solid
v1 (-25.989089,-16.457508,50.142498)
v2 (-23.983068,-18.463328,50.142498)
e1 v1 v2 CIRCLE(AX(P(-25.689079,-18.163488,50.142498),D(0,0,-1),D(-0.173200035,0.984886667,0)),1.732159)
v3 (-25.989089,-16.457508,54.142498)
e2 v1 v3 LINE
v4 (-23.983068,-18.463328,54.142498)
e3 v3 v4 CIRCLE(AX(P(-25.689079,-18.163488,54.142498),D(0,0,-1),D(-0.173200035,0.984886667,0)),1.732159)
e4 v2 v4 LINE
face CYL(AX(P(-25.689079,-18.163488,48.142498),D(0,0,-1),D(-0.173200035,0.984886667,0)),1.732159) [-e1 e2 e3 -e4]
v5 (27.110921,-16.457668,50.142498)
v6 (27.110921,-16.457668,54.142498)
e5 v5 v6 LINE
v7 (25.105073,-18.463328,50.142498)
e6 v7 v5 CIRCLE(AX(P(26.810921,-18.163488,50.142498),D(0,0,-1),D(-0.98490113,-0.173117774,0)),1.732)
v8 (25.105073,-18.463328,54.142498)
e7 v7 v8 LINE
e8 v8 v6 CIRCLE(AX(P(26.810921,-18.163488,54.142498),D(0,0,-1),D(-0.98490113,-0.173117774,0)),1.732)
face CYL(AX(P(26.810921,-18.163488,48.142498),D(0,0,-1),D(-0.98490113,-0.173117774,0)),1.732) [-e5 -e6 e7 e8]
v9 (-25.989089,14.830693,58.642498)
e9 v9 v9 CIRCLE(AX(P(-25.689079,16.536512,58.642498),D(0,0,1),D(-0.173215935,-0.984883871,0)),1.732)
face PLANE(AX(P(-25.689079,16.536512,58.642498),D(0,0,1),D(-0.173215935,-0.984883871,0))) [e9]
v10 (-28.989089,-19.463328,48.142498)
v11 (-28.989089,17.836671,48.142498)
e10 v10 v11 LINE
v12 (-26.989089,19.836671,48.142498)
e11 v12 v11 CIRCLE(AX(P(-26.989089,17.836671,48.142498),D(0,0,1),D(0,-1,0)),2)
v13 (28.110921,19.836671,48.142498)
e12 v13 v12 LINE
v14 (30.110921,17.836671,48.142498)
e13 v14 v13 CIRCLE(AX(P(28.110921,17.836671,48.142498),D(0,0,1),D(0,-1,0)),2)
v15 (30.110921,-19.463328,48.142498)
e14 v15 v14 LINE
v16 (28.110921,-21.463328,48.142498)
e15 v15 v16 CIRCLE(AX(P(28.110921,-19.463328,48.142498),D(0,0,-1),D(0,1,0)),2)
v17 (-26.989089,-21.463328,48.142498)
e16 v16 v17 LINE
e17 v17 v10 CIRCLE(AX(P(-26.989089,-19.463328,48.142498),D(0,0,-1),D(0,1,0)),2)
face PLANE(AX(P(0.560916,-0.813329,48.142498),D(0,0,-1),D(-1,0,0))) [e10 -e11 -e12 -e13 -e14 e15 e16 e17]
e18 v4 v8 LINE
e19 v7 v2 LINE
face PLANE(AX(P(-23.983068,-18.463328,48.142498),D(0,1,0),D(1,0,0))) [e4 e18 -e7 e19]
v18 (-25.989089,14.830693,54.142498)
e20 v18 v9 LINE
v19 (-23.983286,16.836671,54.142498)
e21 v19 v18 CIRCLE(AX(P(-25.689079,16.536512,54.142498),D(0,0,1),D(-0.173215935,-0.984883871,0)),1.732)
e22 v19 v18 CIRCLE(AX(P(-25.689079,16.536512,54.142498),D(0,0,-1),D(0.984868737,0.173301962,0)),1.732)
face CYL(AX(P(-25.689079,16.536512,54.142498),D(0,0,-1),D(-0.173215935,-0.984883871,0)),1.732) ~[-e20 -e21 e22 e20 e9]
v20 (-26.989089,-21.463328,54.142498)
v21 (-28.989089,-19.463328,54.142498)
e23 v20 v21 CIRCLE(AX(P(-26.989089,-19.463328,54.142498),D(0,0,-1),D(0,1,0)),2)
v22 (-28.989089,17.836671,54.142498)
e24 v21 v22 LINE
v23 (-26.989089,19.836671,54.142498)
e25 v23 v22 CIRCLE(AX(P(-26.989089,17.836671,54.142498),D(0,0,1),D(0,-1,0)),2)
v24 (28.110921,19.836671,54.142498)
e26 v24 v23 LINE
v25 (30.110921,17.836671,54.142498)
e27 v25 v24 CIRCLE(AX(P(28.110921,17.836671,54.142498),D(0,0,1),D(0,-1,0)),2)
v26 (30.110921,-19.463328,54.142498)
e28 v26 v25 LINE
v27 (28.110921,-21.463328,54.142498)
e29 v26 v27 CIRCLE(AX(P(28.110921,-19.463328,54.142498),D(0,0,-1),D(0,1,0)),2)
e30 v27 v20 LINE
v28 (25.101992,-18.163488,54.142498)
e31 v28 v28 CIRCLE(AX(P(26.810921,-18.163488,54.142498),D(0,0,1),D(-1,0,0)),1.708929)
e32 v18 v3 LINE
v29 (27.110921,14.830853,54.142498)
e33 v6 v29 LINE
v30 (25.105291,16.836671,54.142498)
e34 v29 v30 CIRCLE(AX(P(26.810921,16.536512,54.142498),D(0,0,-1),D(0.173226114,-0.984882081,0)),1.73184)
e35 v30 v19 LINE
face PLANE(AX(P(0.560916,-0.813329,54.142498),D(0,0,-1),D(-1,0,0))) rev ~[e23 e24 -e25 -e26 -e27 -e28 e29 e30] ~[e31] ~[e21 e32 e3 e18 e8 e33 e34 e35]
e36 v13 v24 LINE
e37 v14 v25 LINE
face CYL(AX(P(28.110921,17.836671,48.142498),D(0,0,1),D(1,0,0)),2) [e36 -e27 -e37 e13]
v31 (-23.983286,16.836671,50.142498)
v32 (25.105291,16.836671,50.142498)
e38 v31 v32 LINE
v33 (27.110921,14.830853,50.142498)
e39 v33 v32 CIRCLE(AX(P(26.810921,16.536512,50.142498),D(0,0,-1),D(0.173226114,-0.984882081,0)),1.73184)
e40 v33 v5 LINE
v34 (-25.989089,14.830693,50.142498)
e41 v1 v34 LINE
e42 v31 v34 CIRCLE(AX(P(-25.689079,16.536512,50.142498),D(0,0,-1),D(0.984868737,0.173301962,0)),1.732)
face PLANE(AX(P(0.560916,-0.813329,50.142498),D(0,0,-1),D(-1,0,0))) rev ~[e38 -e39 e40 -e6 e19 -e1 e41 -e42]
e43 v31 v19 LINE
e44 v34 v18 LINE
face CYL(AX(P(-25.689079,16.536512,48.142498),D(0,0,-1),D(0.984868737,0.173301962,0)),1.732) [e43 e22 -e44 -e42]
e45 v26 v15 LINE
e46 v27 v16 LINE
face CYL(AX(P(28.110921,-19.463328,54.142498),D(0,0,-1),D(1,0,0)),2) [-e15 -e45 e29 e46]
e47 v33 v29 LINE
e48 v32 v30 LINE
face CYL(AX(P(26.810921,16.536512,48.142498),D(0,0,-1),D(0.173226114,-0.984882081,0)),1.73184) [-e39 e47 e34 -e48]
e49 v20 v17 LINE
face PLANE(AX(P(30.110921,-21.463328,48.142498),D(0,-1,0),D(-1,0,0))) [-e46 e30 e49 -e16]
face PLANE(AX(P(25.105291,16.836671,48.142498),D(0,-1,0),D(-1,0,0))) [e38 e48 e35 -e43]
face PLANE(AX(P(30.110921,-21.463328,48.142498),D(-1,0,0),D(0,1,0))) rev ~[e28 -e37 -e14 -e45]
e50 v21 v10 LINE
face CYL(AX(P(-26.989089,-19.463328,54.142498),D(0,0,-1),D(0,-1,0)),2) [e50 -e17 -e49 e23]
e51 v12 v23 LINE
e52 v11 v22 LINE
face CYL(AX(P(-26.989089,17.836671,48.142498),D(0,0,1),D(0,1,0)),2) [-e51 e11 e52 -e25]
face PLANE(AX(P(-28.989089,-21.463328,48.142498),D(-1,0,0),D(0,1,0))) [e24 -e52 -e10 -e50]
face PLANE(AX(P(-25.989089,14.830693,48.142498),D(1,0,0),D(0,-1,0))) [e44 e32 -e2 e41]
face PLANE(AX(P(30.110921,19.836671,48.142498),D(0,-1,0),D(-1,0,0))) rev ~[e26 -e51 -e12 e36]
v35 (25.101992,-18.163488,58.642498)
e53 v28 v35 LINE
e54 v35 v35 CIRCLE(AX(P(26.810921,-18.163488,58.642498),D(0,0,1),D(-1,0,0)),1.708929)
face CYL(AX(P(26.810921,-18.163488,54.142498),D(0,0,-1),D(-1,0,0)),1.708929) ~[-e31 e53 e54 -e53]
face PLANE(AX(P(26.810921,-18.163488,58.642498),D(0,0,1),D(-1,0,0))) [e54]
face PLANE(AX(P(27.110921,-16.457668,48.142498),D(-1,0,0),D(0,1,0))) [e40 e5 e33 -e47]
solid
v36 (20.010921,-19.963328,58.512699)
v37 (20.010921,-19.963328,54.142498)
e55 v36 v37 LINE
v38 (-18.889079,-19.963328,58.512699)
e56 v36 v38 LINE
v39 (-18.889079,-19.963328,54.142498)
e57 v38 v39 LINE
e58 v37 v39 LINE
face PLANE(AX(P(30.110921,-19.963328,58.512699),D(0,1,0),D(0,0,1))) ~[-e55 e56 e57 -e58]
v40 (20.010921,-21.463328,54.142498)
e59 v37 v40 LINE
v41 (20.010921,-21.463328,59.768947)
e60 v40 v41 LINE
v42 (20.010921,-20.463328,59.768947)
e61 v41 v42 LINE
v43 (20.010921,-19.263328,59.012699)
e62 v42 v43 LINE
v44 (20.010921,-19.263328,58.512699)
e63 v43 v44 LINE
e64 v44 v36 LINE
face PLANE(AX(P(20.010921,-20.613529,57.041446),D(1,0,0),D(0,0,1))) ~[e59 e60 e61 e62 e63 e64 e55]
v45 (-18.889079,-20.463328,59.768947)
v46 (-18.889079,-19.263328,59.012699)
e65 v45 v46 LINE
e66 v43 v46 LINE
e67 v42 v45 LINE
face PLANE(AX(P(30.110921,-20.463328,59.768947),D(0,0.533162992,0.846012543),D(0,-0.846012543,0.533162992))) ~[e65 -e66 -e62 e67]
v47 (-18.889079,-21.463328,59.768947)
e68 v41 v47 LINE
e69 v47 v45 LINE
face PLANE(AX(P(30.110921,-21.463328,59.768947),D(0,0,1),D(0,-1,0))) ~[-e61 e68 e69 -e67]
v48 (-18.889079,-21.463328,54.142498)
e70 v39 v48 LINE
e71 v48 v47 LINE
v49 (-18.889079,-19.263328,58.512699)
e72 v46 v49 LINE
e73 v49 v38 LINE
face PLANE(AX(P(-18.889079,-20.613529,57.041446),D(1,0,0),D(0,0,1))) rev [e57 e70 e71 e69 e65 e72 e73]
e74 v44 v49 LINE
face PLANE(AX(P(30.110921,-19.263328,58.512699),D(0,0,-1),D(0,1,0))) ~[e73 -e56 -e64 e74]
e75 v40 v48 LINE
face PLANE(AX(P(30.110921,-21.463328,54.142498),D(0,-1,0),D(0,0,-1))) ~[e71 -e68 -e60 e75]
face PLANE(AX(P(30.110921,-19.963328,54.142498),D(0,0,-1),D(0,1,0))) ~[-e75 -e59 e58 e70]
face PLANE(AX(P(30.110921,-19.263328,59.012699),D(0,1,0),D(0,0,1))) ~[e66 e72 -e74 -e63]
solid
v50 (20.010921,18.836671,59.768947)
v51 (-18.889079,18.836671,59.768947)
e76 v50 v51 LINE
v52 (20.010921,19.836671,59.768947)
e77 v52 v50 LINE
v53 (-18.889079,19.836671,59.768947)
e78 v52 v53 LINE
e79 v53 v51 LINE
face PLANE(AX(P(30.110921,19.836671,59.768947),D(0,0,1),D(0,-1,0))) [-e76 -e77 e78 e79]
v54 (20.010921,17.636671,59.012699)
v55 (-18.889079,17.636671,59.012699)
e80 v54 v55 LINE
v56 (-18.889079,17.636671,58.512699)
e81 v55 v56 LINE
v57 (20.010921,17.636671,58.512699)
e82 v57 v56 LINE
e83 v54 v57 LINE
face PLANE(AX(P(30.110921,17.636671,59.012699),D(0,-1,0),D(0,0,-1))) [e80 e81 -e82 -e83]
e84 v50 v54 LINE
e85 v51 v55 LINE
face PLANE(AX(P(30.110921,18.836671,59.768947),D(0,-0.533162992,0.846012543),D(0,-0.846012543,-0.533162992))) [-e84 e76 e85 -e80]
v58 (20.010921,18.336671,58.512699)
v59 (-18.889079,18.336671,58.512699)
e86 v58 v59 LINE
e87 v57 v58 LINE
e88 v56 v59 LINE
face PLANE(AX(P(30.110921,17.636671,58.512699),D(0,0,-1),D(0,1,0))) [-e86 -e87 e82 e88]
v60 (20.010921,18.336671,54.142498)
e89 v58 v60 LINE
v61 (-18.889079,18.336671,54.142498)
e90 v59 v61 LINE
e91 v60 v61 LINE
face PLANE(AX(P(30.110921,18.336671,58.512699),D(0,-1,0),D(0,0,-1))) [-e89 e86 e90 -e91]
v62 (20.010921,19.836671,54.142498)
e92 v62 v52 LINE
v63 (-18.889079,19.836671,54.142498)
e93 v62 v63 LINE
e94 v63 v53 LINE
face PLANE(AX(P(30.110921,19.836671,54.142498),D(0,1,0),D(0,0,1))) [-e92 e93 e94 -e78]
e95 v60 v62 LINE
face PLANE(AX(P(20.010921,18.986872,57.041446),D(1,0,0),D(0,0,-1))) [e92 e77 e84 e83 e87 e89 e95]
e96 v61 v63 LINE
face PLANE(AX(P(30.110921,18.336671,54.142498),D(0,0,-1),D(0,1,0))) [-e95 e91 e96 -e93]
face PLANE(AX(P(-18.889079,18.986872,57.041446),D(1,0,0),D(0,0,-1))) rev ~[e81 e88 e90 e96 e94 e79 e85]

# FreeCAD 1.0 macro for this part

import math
import FreeCAD as App
import Part
import Sketcher


def edges_at(feature, points):
    """Names of the edges that pass closest to the given points."""
    edges = feature.Shape.Edges
    near = lambda p: min(range(len(edges)), key=lambda i: edges[i].distToShape(Part.Vertex(*p))[0])
    return sorted({f"Edge{near(p) + 1}" for p in points})

doc = App.newDocument("Part")
body = doc.addObject("PartDesign::Body", "Body")

sketch1 = doc.addObject("Sketcher::SketchObject", "Sketch")
body.addObject(sketch1)
sketch1.AttachmentSupport = (doc.XY_Plane, [""])
sketch1.MapMode = "FlatFace"
sketch1.AttachmentOffset = App.Placement(App.Vector(0, 0, 48.142498), App.Rotation())
sketch1.addGeometry([
    Part.LineSegment(App.Vector(30.110921, 19.836671, 0), App.Vector(30.110921, -21.463328, 0)),
    Part.LineSegment(App.Vector(30.110921, -21.463328, 0), App.Vector(-28.989089, -21.463328, 0)),
    Part.LineSegment(App.Vector(-28.989089, -21.463328, 0), App.Vector(-28.989089, 19.836671, 0)),
    Part.LineSegment(App.Vector(-28.989089, 19.836671, 0), App.Vector(30.110921, 19.836671, 0)),
    Part.ArcOfCircle(Part.Circle(App.Vector(26.810921, -18.163488, 0), App.Vector(0, 0, 1), 1.732), math.radians(80.025483), math.radians(189.969143)),
    Part.LineSegment(App.Vector(27.110921, -16.457668, 0), App.Vector(27.110921, 14.830853, 0)),
    Part.ArcOfCircle(Part.Circle(App.Vector(26.810921, 16.536512, 0), App.Vector(0, 0, 1), 1.73184), math.radians(170.019213), math.radians(279.975445)),
    Part.LineSegment(App.Vector(25.105291, 16.836671, 0), App.Vector(-23.983286, 16.836671, 0)),
    Part.ArcOfCircle(Part.Circle(App.Vector(-25.689079, 16.536512, 0), App.Vector(0, 0, 1), 1.732), math.radians(-99.974853), math.radians(9.979858)),
    Part.LineSegment(App.Vector(-25.989089, 14.830693, 0), App.Vector(-25.989089, -16.457508, 0)),
    Part.ArcOfCircle(Part.Circle(App.Vector(-25.689079, -18.163488, 0), App.Vector(0, 0, 1), 1.732159), math.radians(-9.968218), math.radians(99.973928)),
    Part.LineSegment(App.Vector(-23.983068, -18.463328, 0), App.Vector(25.105073, -18.463328, 0)),
], False)
sketch1.addConstraint([
    Sketcher.Constraint("Coincident", 0, 2, 1, 1),
    Sketcher.Constraint("Coincident", 1, 2, 2, 1),
    Sketcher.Constraint("Coincident", 2, 2, 3, 1),
    Sketcher.Constraint("Coincident", 3, 2, 0, 1),
    Sketcher.Constraint("Coincident", 4, 1, 5, 1),
    Sketcher.Constraint("Coincident", 5, 2, 6, 2),
    Sketcher.Constraint("Coincident", 6, 1, 7, 1),
    Sketcher.Constraint("Coincident", 7, 2, 8, 2),
    Sketcher.Constraint("Coincident", 8, 1, 9, 1),
    Sketcher.Constraint("Coincident", 9, 2, 10, 2),
    Sketcher.Constraint("Coincident", 10, 1, 11, 1),
    Sketcher.Constraint("Coincident", 11, 2, 4, 2),
    Sketcher.Constraint("Vertical", 0),
    Sketcher.Constraint("Horizontal", 1),
    Sketcher.Constraint("Vertical", 2),
    Sketcher.Constraint("Horizontal", 3),
    Sketcher.Constraint("Vertical", 5),
    Sketcher.Constraint("Horizontal", 7),
    Sketcher.Constraint("Vertical", 9),
    Sketcher.Constraint("Horizontal", 11),
    Sketcher.Constraint("Equal", 4, 8),
    Sketcher.Constraint("Horizontal", 6, 3, 8, 3),
    Sketcher.Constraint("Horizontal", 4, 3, 10, 3),
    Sketcher.Constraint("Vertical", 4, 3, 6, 3),
    Sketcher.Constraint("Vertical", 8, 3, 10, 3),
    Sketcher.Constraint("DistanceY", 0, 2, 0, 1, 41.299999),
    Sketcher.Constraint("Radius", 4, 1.732),
    Sketcher.Constraint("DistanceX", 4, 1, 0, 2, 3.0),
    Sketcher.Constraint("DistanceY", 6, 1, 3, 2, 3.0),
    Sketcher.Constraint("DistanceX", 2, 2, 8, 1, 3.0),
    Sketcher.Constraint("DistanceY", 1, 2, 10, 1, 3.0),
    Sketcher.Constraint("DistanceY", 4, 3, 6, 3, 34.7),
    Sketcher.Constraint("DistanceX", 8, 3, 6, 3, 52.5),
    Sketcher.Constraint("DistanceX", 4, 3, 0, 2, 3.3),
    Sketcher.Constraint("Radius", 6, 1.73184),
    Sketcher.Constraint("Radius", 10, 1.732159),
    Sketcher.Constraint("DistanceY", 9, 2, 9, 1, 31.288201),
    Sketcher.Constraint("DistanceX", 11, 1, 11, 2, 49.088141),
    Sketcher.Constraint("DistanceX", -1, 1, 4, 3, 26.810921),
    Sketcher.Constraint("DistanceY", 4, 3, -1, 1, 18.163488),
])
pad1 = doc.addObject("PartDesign::Pad", "Pad")
body.addObject(pad1)
pad1.Profile = sketch1
pad1.Length = 6

sketch2 = doc.addObject("Sketcher::SketchObject", "Sketch001")
body.addObject(sketch2)
sketch2.AttachmentSupport = (doc.XY_Plane, [""])
sketch2.MapMode = "FlatFace"
sketch2.AttachmentOffset = App.Placement(App.Vector(0, 0, 48.142498), App.Rotation())
sketch2.addGeometry([
    Part.LineSegment(App.Vector(30.110921, 19.836671, 0), App.Vector(30.110921, -21.463328, 0)),
    Part.LineSegment(App.Vector(30.110921, -21.463328, 0), App.Vector(-28.989089, -21.463328, 0)),
    Part.LineSegment(App.Vector(-28.989089, -21.463328, 0), App.Vector(-28.989089, 19.836671, 0)),
    Part.LineSegment(App.Vector(-28.989089, 19.836671, 0), App.Vector(30.110921, 19.836671, 0)),
], False)
sketch2.addConstraint([
    Sketcher.Constraint("Coincident", 0, 2, 1, 1),
    Sketcher.Constraint("Coincident", 1, 2, 2, 1),
    Sketcher.Constraint("Coincident", 2, 2, 3, 1),
    Sketcher.Constraint("Coincident", 3, 2, 0, 1),
    Sketcher.Constraint("Vertical", 0),
    Sketcher.Constraint("Horizontal", 1),
    Sketcher.Constraint("Vertical", 2),
    Sketcher.Constraint("Horizontal", 3),
    Sketcher.Constraint("DistanceY", 0, 2, 0, 1, 41.299999),
    Sketcher.Constraint("DistanceX", 1, 2, 1, 1, 59.10001),
    Sketcher.Constraint("DistanceX", -1, 1, 0, 2, 30.110921),
    Sketcher.Constraint("DistanceY", 0, 2, -1, 1, 21.463328),
])
pad2 = doc.addObject("PartDesign::Pad", "Pad001")
body.addObject(pad2)
pad2.Profile = sketch2
pad2.Length = 2

sketch3 = doc.addObject("Sketcher::SketchObject", "Sketch002")
body.addObject(sketch3)
sketch3.AttachmentSupport = (doc.XY_Plane, [""])
sketch3.MapMode = "FlatFace"
sketch3.AttachmentOffset = App.Placement(App.Vector(0, 0, 54.142498), App.Rotation())
sketch3.addGeometry([
    Part.Circle(App.Vector(26.810921, -18.163488, 0), App.Vector(0, 0, 1), 1.708929),
    Part.Circle(App.Vector(-25.689079, 16.536512, 0), App.Vector(0, 0, 1), 1.732),
], False)
sketch3.addConstraint([
    Sketcher.Constraint("Diameter", 1, 3.464),
    Sketcher.Constraint("DistanceX", 1, 3, 0, 3, 52.5),
    Sketcher.Constraint("DistanceY", 0, 3, 1, 3, 34.7),
    Sketcher.Constraint("Diameter", 0, 3.417858),
    Sketcher.Constraint("DistanceX", -1, 1, 0, 3, 26.810921),
    Sketcher.Constraint("DistanceY", 0, 3, -1, 1, 18.163488),
])
pad3 = doc.addObject("PartDesign::Pad", "Pad002")
body.addObject(pad3)
pad3.Profile = sketch3
pad3.Length = 4.5
doc.recompute()

fillet = doc.addObject("PartDesign::Fillet", "Fillet")
body.addObject(fillet)
fillet.Base = (pad3, edges_at(pad3, [
    (30.111, -21.463, 51.142),
    (30.111, 19.837, 51.142),
    (-28.989, 19.837, 51.142),
    (-28.989, -21.463, 51.142),
]))
fillet.Radius = 2
body2 = doc.addObject("PartDesign::Body", "Body001")

sketch4 = doc.addObject("Sketcher::SketchObject", "Sketch003")
body2.addObject(sketch4)
sketch4.AttachmentSupport = (doc.getObject("YZ_Plane001"), [""])
sketch4.MapMode = "FlatFace"
sketch4.AttachmentOffset = App.Placement(App.Vector(0, 0, 30.110921), App.Rotation())
sketch4.addGeometry([
    Part.LineSegment(App.Vector(19.836671, 54.142498, 0), App.Vector(19.836671, 59.768947, 0)),
    Part.LineSegment(App.Vector(19.836671, 59.768947, 0), App.Vector(18.836671, 59.768947, 0)),
    Part.LineSegment(App.Vector(18.836671, 59.768947, 0), App.Vector(17.636671, 59.012699, 0)),
    Part.LineSegment(App.Vector(17.636671, 59.012699, 0), App.Vector(17.636671, 58.512699, 0)),
    Part.LineSegment(App.Vector(17.636671, 58.512699, 0), App.Vector(18.336671, 58.512699, 0)),
    Part.LineSegment(App.Vector(18.336671, 58.512699, 0), App.Vector(18.336671, 54.142498, 0)),
    Part.LineSegment(App.Vector(18.336671, 54.142498, 0), App.Vector(19.836671, 54.142498, 0)),
], False)
sketch4.addConstraint([
    Sketcher.Constraint("Coincident", 0, 2, 1, 1),
    Sketcher.Constraint("Coincident", 1, 2, 2, 1),
    Sketcher.Constraint("Coincident", 2, 2, 3, 1),
    Sketcher.Constraint("Coincident", 3, 2, 4, 1),
    Sketcher.Constraint("Coincident", 4, 2, 5, 1),
    Sketcher.Constraint("Coincident", 5, 2, 6, 1),
    Sketcher.Constraint("Coincident", 6, 2, 0, 1),
    Sketcher.Constraint("Vertical", 0),
    Sketcher.Constraint("Horizontal", 1),
    Sketcher.Constraint("Vertical", 3),
    Sketcher.Constraint("Horizontal", 4),
    Sketcher.Constraint("Vertical", 5),
    Sketcher.Constraint("Horizontal", 6),
    Sketcher.Constraint("DistanceX", 1, 2, 1, 1, 1.0),
    Sketcher.Constraint("DistanceX", 4, 1, 4, 2, 0.7),
    Sketcher.Constraint("DistanceX", 6, 1, 6, 2, 1.5),
    Sketcher.Constraint("DistanceY", 3, 2, 3, 1, 0.5),
    Sketcher.Constraint("DistanceY", 5, 2, 5, 1, 4.370202),
    Sketcher.Constraint("DistanceY", 0, 1, 0, 2, 5.62645),
    Sketcher.Constraint("DistanceY", -1, 1, 2, 2, 59.012699),
    Sketcher.Constraint("DistanceX", -1, 1, 0, 2, 19.836671),
])
pad4 = doc.addObject("PartDesign::Pad", "Pad003")
body2.addObject(pad4)
pad4.Profile = sketch4
pad4.Length = 49
pad4.Reversed = True

sketch5 = doc.addObject("Sketcher::SketchObject", "Sketch004")
body2.addObject(sketch5)
sketch5.AttachmentSupport = (doc.getObject("YZ_Plane001"), [""])
sketch5.MapMode = "FlatFace"
sketch5.AttachmentOffset = App.Placement(App.Vector(0, 0, 30.110921), App.Rotation())
sketch5.addGeometry([
    Part.LineSegment(App.Vector(19.836671, 54.142498, 0), App.Vector(19.836671, 59.768947, 0)),
    Part.LineSegment(App.Vector(19.836671, 59.768947, 0), App.Vector(18.836671, 59.768947, 0)),
    Part.LineSegment(App.Vector(18.836671, 59.768947, 0), App.Vector(17.636671, 59.012699, 0)),
    Part.LineSegment(App.Vector(17.636671, 59.012699, 0), App.Vector(17.636671, 58.512699, 0)),
    Part.LineSegment(App.Vector(17.636671, 58.512699, 0), App.Vector(18.336671, 58.512699, 0)),
    Part.LineSegment(App.Vector(18.336671, 58.512699, 0), App.Vector(18.336671, 54.142498, 0)),
    Part.LineSegment(App.Vector(18.336671, 54.142498, 0), App.Vector(19.836671, 54.142498, 0)),
], False)
sketch5.addConstraint([
    Sketcher.Constraint("Coincident", 0, 2, 1, 1),
    Sketcher.Constraint("Coincident", 1, 2, 2, 1),
    Sketcher.Constraint("Coincident", 2, 2, 3, 1),
    Sketcher.Constraint("Coincident", 3, 2, 4, 1),
    Sketcher.Constraint("Coincident", 4, 2, 5, 1),
    Sketcher.Constraint("Coincident", 5, 2, 6, 1),
    Sketcher.Constraint("Coincident", 6, 2, 0, 1),
    Sketcher.Constraint("Vertical", 0),
    Sketcher.Constraint("Horizontal", 1),
    Sketcher.Constraint("Vertical", 3),
    Sketcher.Constraint("Horizontal", 4),
    Sketcher.Constraint("Vertical", 5),
    Sketcher.Constraint("Horizontal", 6),
    Sketcher.Constraint("DistanceX", 1, 2, 1, 1, 1.0),
    Sketcher.Constraint("DistanceX", 4, 1, 4, 2, 0.7),
    Sketcher.Constraint("DistanceX", 6, 1, 6, 2, 1.5),
    Sketcher.Constraint("DistanceY", 3, 2, 3, 1, 0.5),
    Sketcher.Constraint("DistanceY", 5, 2, 5, 1, 4.370202),
    Sketcher.Constraint("DistanceY", 0, 1, 0, 2, 5.62645),
    Sketcher.Constraint("DistanceY", -1, 1, 2, 2, 59.012699),
    Sketcher.Constraint("DistanceX", -1, 1, 0, 2, 19.836671),
])
pocket1 = doc.addObject("PartDesign::Pocket", "Pocket")
body2.addObject(pocket1)
pocket1.Profile = sketch5
pocket1.Length = 10.1
body3 = doc.addObject("PartDesign::Body", "Body002")
doc.recompute()

mirroring = doc.addObject("Part::Mirroring", "Mirroring")
mirroring.Source = body2
mirroring.Base = App.Vector(0, -0.813329, 0)
mirroring.Normal = App.Vector(0, -1, 0)
body3.BaseFeature = mirroring
doc.recompute()
mirroring.Visibility = False

doc.recompute()
